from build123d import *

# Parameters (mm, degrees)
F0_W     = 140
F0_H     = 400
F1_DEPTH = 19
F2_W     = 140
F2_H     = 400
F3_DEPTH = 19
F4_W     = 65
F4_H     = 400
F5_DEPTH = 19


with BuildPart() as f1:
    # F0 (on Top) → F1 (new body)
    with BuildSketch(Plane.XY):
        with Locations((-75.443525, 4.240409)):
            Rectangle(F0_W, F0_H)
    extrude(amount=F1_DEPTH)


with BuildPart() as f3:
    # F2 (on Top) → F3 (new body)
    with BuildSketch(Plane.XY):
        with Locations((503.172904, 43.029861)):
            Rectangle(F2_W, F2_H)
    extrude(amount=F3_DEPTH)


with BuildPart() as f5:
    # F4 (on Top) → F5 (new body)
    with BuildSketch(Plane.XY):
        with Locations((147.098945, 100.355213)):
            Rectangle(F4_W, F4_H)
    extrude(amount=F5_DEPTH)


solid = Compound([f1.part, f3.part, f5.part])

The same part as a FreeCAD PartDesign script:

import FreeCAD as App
import Part
import Sketcher
from FreeCAD import Vector

doc = App.newDocument("Part")
body = doc.addObject("PartDesign::Body", "Body")

# Sketch on XY plane
sketch1 = doc.addObject("Sketcher::SketchObject", "Sketch")
body.addObject(sketch1)
sketch1.AttachmentSupport = (doc.XY_Plane, [""])
sketch1.MapMode = "FlatFace"
sketch1.addGeometry([
    Part.LineSegment(Vector(-145, 204, 0), Vector(-145, -196, 0)),
    Part.LineSegment(Vector(-145, -196, 0), Vector(-5, -196, 0)),
    Part.LineSegment(Vector(-5, -196, 0), Vector(-5, 204, 0)),
    Part.LineSegment(Vector(-5, 204, 0), Vector(-145, 204, 0)),
], False)
sketch1.addConstraint([
    Sketcher.Constraint("Coincident", 0, 2, 1, 1),
    Sketcher.Constraint("Coincident", 1, 2, 2, 1),
    Sketcher.Constraint("Coincident", 2, 2, 3, 1),
    Sketcher.Constraint("Coincident", 3, 2, 0, 1),
    Sketcher.Constraint("Vertical", 0),
    Sketcher.Constraint("Horizontal", 1),
    Sketcher.Constraint("Vertical", 2),
    Sketcher.Constraint("Horizontal", 3),
    Sketcher.Constraint("DistanceX", 1, 1, 1, 2, 140.0),
    Sketcher.Constraint("DistanceY", 0, 2, 0, 1, 400.0),
    Sketcher.Constraint("DistanceY", 0, 2, -1, 1, 195.759591),
    Sketcher.Constraint("DistanceX", 0, 2, -1, 1, 145.443525),
])
pad1 = doc.addObject("PartDesign::Pad", "Pad")
body.addObject(pad1)
pad1.Profile = sketch1
pad1.Length = 19
body2 = doc.addObject("PartDesign::Body", "Body001")

# Sketch on XY plane
sketch2 = doc.addObject("Sketcher::SketchObject", "Sketch001")
body2.addObject(sketch2)
sketch2.AttachmentSupport = (doc.getObject("XY_Plane001"), [""])
sketch2.MapMode = "FlatFace"
sketch2.addGeometry([
    Part.LineSegment(Vector(433, 243, 0), Vector(433, -157, 0)),
    Part.LineSegment(Vector(433, -157, 0), Vector(573, -157, 0)),
    Part.LineSegment(Vector(573, -157, 0), Vector(573, 243, 0)),
    Part.LineSegment(Vector(573, 243, 0), Vector(433, 243, 0)),
], False)
sketch2.addConstraint([
    Sketcher.Constraint("Coincident", 0, 2, 1, 1),
    Sketcher.Constraint("Coincident", 1, 2, 2, 1),
    Sketcher.Constraint("Coincident", 2, 2, 3, 1),
    Sketcher.Constraint("Coincident", 3, 2, 0, 1),
    Sketcher.Constraint("Vertical", 0),
    Sketcher.Constraint("Horizontal", 1),
    Sketcher.Constraint("Vertical", 2),
    Sketcher.Constraint("Horizontal", 3),
    Sketcher.Constraint("DistanceX", 1, 1, 1, 2, 140.0),
    Sketcher.Constraint("DistanceY", 0, 2, 0, 1, 400.0),
    Sketcher.Constraint("DistanceY", 0, 2, -1, 1, 156.970139),
    Sketcher.Constraint("DistanceX", -1, 1, 0, 2, 433.172904),
])
pad2 = doc.addObject("PartDesign::Pad", "Pad001")
body2.addObject(pad2)
pad2.Profile = sketch2
pad2.Length = 19
body3 = doc.addObject("PartDesign::Body", "Body002")

# Sketch on XY plane
sketch3 = doc.addObject("Sketcher::SketchObject", "Sketch002")
body3.addObject(sketch3)
sketch3.AttachmentSupport = (doc.getObject("XY_Plane002"), [""])
sketch3.MapMode = "FlatFace"
sketch3.addGeometry([
    Part.LineSegment(Vector(115, 300, 0), Vector(115, -100, 0)),
    Part.LineSegment(Vector(115, -100, 0), Vector(180, -100, 0)),
    Part.LineSegment(Vector(180, -100, 0), Vector(180, 300, 0)),
    Part.LineSegment(Vector(180, 300, 0), Vector(115, 300, 0)),
], False)
sketch3.addConstraint([
    Sketcher.Constraint("Coincident", 0, 2, 1, 1),
    Sketcher.Constraint("Coincident", 1, 2, 2, 1),
    Sketcher.Constraint("Coincident", 2, 2, 3, 1),
    Sketcher.Constraint("Coincident", 3, 2, 0, 1),
    Sketcher.Constraint("Vertical", 0),
    Sketcher.Constraint("Horizontal", 1),
    Sketcher.Constraint("Vertical", 2),
    Sketcher.Constraint("Horizontal", 3),
    Sketcher.Constraint("DistanceX", 1, 1, 1, 2, 65.0),
    Sketcher.Constraint("DistanceY", 0, 2, 0, 1, 400.0),
    Sketcher.Constraint("DistanceX", -1, 1, 0, 2, 114.598945),
    Sketcher.Constraint("DistanceY", 0, 2, -1, 1, 99.644787),
])
pad3 = doc.addObject("PartDesign::Pad", "Pad002")
body3.addObject(pad3)
pad3.Profile = sketch3
pad3.Length = 19

doc.recompute()
